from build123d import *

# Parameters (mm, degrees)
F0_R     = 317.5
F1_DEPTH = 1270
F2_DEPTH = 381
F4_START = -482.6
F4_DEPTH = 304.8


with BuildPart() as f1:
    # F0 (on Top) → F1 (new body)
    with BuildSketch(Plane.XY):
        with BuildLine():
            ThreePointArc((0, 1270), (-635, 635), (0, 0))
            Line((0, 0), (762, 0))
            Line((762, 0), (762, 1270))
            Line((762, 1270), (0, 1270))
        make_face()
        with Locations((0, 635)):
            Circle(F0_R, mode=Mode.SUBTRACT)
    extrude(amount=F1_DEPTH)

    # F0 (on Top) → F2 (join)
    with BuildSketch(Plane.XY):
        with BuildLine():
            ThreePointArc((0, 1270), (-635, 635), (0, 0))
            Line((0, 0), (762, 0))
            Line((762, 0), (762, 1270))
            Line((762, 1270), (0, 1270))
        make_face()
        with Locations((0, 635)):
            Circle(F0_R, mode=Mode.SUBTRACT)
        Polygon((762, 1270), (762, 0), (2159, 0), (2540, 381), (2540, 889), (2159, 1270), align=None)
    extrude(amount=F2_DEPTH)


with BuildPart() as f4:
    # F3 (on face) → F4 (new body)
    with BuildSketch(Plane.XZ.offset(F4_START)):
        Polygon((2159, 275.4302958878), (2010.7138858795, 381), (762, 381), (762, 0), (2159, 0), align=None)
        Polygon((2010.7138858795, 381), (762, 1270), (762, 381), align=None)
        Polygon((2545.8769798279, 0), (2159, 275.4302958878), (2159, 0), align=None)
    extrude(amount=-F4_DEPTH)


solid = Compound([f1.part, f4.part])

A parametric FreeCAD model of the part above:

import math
import FreeCAD as App
import Part
import Sketcher
Q = App.Units.Quantity

doc = App.newDocument("Part")
body = doc.addObject("PartDesign::Body", "Body")

sketch1 = body.newObject("Sketcher::SketchObject", "Sketch")
sketch1.AttachmentSupport = (doc.getObject("XY_Plane"), [""])
sketch1.MapMode = "FlatFace"
sketch1.addGeometry([
    Part.ArcOfCircle(Part.Circle(App.Vector(0, 635, 0), App.Vector(0, 0, 1), 635), math.radians(90), math.radians(270)),
    Part.LineSegment(App.Vector(0, 0, 0), App.Vector(762, 0, 0)),
    Part.LineSegment(App.Vector(762, 0, 0), App.Vector(762, 1270, 0)),
    Part.LineSegment(App.Vector(762, 1270, 0), App.Vector(0, 1270, 0)),
    Part.Circle(App.Vector(0, 635, 0), App.Vector(0, 0, 1), 318),
], False)
sketch1.addConstraint([
    Sketcher.Constraint("Tangent", 0, 2, 1, 1),
    Sketcher.Constraint("Coincident", 1, 2, 2, 1),
    Sketcher.Constraint("Coincident", 2, 2, 3, 1),
    Sketcher.Constraint("Tangent", 3, 2, 0, 1),
    Sketcher.Constraint("Horizontal", 1),
    Sketcher.Constraint("Vertical", 2),
    Sketcher.Constraint("Horizontal", 3),
    Sketcher.Constraint("Coincident", 4, 3, 0, 3),
    Sketcher.Constraint("PointOnObject", 0, 3, -2),
    Sketcher.Constraint("PointOnObject", 1, 2, -1),
    Sketcher.Constraint("Diameter", 4, Q("25 in")),
    Sketcher.Constraint("Radius", 0, Q("25 in")),
    Sketcher.Constraint("DistanceX", 1, 1, 1, 2, Q("30 in")),
])
pad1 = body.newObject("PartDesign::Pad", "Pad")
pad1.Profile = sketch1
pad1.Length = Q("50 in")

sketch2 = body.newObject("Sketcher::SketchObject", "Sketch001")
sketch2.AttachmentSupport = (doc.getObject("XY_Plane"), [""])
sketch2.MapMode = "FlatFace"
sketch2.addGeometry([
    Part.ArcOfCircle(Part.Circle(App.Vector(0, 635, 0), App.Vector(0, 0, 1), 635), math.radians(90), math.radians(270)),
    Part.LineSegment(App.Vector(0, 0, 0), App.Vector(2159, 0, 0)),
    Part.LineSegment(App.Vector(2159, 0, 0), App.Vector(2540, 381, 0)),
    Part.LineSegment(App.Vector(2540, 381, 0), App.Vector(2540, 889, 0)),
    Part.LineSegment(App.Vector(2540, 889, 0), App.Vector(2159, 1270, 0)),
    Part.LineSegment(App.Vector(2159, 1270, 0), App.Vector(0, 1270, 0)),
    Part.Circle(App.Vector(0, 635, 0), App.Vector(0, 0, 1), 318),
], False)
sketch2.addConstraint([
    Sketcher.Constraint("Tangent", 0, 2, 1, 1),
    Sketcher.Constraint("Coincident", 1, 2, 2, 1),
    Sketcher.Constraint("Coincident", 2, 2, 3, 1),
    Sketcher.Constraint("Coincident", 3, 2, 4, 1),
    Sketcher.Constraint("Coincident", 4, 2, 5, 1),
    Sketcher.Constraint("Tangent", 5, 2, 0, 1),
    Sketcher.Constraint("Horizontal", 1),
    Sketcher.Constraint("Vertical", 3),
    Sketcher.Constraint("Horizontal", 5),
    Sketcher.Constraint("Coincident", 6, 3, 0, 3),
    Sketcher.Constraint("PointOnObject", 0, 3, -2),
    Sketcher.Constraint("PointOnObject", 1, 2, -1),
    Sketcher.Constraint("Perpendicular", 2, 4),
    Sketcher.Constraint("Vertical", 1, 2, 4, 2),
    Sketcher.Constraint("Equal", 2, 4),
    Sketcher.Constraint("Diameter", 6, Q("25 in")),
    Sketcher.Constraint("Radius", 0, Q("25 in")),
    Sketcher.Constraint("DistanceX", 1, 1, 1, 2, Q("85 in")),
    Sketcher.Constraint("DistanceY", 3, 1, 3, 2, Q("20 in")),
])
pad2 = body.newObject("PartDesign::Pad", "Pad001")
pad2.Profile = sketch2
pad2.Length = Q("15 in")
body2 = doc.addObject("PartDesign::Body", "Body001")

sketch3 = body2.newObject("Sketcher::SketchObject", "Sketch002")
sketch3.AttachmentSupport = (doc.getObject("XZ_Plane001"), [""])
sketch3.MapMode = "FlatFace"
sketch3.AttachmentOffset = App.Placement(App.Vector(0, 0, -19 * 25.4), App.Rotation())
sketch3.addGeometry([
    Part.LineSegment(App.Vector(762, 1270, 0), App.Vector(762, 0, 0)),
    Part.LineSegment(App.Vector(762, 0, 0), App.Vector(2546, 0, 0)),
    Part.LineSegment(App.Vector(2546, 0, 0), App.Vector(762, 1270, 0)),
], False)
sketch3.addConstraint([
    Sketcher.Constraint("Coincident", 0, 2, 1, 1),
    Sketcher.Constraint("Coincident", 1, 2, 2, 1),
    Sketcher.Constraint("Coincident", 2, 2, 0, 1),
    Sketcher.Constraint("Vertical", 0),
    Sketcher.Constraint("Horizontal", 1),
    Sketcher.Constraint("PointOnObject", 0, 2, -1),
    Sketcher.Constraint("DistanceY", 0, 2, 0, 1, Q("50 in")),
    Sketcher.Constraint("DistanceX", -1, 1, 0, 2, Q("30 in")),
    Sketcher.Constraint("DistanceX", 1, 1, 1, 2, Q("1783.87698 mm")),
])
pad3 = body2.newObject("PartDesign::Pad", "Pad002")
pad3.Profile = sketch3
pad3.Length = Q("12 in")
pad3.Reversed = True

doc.recompute()
